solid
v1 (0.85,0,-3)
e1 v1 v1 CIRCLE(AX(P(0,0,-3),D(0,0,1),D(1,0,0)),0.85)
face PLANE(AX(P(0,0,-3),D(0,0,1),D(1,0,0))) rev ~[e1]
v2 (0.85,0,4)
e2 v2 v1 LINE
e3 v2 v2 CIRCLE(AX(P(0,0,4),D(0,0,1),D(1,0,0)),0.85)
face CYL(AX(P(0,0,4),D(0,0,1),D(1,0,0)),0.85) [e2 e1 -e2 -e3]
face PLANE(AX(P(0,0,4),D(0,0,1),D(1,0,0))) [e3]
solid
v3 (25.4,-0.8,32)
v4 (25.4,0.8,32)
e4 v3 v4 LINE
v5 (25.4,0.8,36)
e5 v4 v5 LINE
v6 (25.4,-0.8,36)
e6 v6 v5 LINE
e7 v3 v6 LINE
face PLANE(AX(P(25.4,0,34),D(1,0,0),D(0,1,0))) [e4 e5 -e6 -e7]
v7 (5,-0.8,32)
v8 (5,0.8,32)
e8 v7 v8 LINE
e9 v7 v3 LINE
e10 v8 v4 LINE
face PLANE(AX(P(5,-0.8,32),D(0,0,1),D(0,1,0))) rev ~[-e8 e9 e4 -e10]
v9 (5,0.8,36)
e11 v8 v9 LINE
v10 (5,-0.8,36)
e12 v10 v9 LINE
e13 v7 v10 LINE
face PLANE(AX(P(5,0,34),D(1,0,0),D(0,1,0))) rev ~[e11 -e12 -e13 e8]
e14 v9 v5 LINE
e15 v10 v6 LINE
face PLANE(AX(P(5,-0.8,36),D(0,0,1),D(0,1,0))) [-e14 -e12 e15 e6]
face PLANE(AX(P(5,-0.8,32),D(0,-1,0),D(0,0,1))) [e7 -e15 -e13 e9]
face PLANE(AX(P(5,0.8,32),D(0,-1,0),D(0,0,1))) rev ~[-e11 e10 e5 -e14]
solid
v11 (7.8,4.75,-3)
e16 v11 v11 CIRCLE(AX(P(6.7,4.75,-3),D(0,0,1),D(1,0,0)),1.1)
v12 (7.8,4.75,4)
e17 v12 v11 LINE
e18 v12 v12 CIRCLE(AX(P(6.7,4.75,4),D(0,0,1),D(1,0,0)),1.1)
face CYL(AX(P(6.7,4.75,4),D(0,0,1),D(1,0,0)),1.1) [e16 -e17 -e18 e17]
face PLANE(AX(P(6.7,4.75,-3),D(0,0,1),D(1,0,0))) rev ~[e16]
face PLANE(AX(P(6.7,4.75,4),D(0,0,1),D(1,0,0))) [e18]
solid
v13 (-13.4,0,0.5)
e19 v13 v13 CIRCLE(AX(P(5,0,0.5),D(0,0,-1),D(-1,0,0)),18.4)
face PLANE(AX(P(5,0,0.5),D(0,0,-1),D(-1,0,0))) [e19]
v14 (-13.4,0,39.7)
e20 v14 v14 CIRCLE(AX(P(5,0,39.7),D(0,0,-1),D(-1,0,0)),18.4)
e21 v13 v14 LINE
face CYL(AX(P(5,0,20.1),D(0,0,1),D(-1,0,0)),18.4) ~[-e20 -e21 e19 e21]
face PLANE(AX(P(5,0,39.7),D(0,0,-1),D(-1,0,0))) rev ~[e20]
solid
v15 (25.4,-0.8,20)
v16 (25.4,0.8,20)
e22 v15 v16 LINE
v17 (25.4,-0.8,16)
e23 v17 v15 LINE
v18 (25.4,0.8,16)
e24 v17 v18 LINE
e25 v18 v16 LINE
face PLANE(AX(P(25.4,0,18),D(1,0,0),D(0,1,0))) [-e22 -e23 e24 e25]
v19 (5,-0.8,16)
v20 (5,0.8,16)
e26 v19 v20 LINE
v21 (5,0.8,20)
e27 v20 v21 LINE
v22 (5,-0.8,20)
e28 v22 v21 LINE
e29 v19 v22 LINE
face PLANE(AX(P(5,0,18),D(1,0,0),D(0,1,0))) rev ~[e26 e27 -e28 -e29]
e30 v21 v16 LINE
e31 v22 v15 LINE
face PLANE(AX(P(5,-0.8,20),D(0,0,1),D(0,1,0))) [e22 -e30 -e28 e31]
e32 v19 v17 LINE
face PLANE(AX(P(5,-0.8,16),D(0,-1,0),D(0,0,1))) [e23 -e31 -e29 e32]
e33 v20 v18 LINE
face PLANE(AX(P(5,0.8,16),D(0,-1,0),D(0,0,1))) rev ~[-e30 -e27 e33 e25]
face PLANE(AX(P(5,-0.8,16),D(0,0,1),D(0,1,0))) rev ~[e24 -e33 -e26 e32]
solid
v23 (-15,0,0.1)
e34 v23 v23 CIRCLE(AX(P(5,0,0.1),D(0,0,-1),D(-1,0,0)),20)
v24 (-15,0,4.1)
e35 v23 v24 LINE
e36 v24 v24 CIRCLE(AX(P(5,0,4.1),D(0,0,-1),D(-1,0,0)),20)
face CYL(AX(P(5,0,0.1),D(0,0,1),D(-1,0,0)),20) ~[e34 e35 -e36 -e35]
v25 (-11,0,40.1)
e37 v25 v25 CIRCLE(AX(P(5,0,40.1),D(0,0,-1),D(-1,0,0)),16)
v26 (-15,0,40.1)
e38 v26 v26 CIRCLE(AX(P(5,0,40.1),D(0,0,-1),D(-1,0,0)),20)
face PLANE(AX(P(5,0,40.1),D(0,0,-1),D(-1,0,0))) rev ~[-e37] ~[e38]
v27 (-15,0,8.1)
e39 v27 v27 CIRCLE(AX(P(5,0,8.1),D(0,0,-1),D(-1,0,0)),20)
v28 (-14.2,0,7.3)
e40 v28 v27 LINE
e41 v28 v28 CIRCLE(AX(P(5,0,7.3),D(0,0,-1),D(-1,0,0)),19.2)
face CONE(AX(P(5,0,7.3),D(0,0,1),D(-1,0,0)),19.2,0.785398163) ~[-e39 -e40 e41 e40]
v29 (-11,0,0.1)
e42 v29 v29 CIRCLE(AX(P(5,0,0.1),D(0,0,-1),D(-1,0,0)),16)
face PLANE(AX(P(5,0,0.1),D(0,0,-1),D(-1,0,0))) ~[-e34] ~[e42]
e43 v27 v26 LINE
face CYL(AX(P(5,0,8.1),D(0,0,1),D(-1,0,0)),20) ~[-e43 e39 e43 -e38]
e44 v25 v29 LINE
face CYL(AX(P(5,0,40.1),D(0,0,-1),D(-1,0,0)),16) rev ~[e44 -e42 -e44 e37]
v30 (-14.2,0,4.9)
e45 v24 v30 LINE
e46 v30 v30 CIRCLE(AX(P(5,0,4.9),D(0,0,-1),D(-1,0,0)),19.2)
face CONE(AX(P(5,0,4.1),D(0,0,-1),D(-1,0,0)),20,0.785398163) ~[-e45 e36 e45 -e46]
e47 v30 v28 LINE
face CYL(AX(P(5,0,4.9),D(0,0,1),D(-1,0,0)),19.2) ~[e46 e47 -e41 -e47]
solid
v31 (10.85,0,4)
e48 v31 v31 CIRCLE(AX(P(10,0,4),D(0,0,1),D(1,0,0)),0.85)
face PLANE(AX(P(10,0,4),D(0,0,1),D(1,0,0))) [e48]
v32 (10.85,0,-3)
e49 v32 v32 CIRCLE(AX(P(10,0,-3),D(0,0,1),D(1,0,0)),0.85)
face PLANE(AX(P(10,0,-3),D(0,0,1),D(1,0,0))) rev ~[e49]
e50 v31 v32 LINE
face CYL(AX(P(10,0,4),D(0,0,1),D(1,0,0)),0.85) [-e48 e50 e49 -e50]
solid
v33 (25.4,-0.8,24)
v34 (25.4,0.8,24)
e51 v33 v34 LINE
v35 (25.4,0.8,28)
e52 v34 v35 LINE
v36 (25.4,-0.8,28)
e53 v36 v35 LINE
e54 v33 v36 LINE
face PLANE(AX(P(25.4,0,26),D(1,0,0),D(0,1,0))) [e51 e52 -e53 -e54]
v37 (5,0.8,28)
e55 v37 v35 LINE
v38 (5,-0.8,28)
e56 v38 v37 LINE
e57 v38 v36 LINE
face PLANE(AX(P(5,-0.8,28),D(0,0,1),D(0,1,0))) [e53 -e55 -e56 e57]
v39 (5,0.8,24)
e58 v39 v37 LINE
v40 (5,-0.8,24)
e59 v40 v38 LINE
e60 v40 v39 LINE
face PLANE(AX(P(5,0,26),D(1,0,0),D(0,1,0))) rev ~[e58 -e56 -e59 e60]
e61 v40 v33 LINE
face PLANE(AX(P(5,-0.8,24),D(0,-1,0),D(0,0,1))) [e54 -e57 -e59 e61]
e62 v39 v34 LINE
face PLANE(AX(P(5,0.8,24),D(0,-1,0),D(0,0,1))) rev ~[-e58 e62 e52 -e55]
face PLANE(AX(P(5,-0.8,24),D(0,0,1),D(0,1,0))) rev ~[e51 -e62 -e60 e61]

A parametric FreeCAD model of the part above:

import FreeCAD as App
import Part
import Sketcher

V = App.Vector

doc = App.newDocument("Part")
body = doc.addObject("PartDesign::Body", "Body")

# Sketch on XZ plane
sketch1 = doc.addObject("Sketcher::SketchObject", "Sketch")
body.addObject(sketch1)
sketch1.AttachmentSupport = (doc.XZ_Plane, [""])
sketch1.MapMode = "FlatFace"
sketch1.addGeometry([
    Part.LineSegment(V(-15, 4.1, 0), V(-15, 0.1, 0)),  # 0
    Part.LineSegment(V(-15, 0.1, 0), V(-11, 0.1, 0)),  # 1
    Part.LineSegment(V(-11, 0.1, 0), V(-11, 40.1, 0)),  # 2
    Part.LineSegment(V(-11, 40.1, 0), V(-15, 40.1, 0)),  # 3
    Part.LineSegment(V(-15, 40.1, 0), V(-15, 8.1, 0)),  # 4
    Part.LineSegment(V(-15, 8.1, 0), V(-14.2, 7.3, 0)),  # 5
    Part.LineSegment(V(-14.2, 7.3, 0), V(-14.2, 4.9, 0)),  # 6
    Part.LineSegment(V(-14.2, 4.9, 0), V(-15, 4.1, 0)),  # 7
], False)
sketch1.addGeometry(Part.LineSegment(V(5, 40.1, 0), V(5, 0.1, 0)), True)  # axis
sketch1.addConstraint([
    Sketcher.Constraint("Coincident", 0, 2, 1, 1),
    Sketcher.Constraint("Coincident", 1, 2, 2, 1),
    Sketcher.Constraint("Coincident", 2, 2, 3, 1),
    Sketcher.Constraint("Coincident", 3, 2, 4, 1),
    Sketcher.Constraint("Coincident", 4, 2, 5, 1),
    Sketcher.Constraint("Coincident", 5, 2, 6, 1),
    Sketcher.Constraint("Coincident", 6, 2, 7, 1),
    Sketcher.Constraint("Coincident", 7, 2, 0, 1),
    Sketcher.Constraint("Vertical", 0),
    Sketcher.Constraint("Horizontal", 1),
    Sketcher.Constraint("Vertical", 2),
    Sketcher.Constraint("Horizontal", 3),
    Sketcher.Constraint("Vertical", 4),
    Sketcher.Constraint("Vertical", 6),
    Sketcher.Constraint("Vertical", 8),
    Sketcher.Constraint("Perpendicular", 5, 7),
    Sketcher.Constraint("Horizontal", 3, 2, 8, 1),
    Sketcher.Constraint("Horizontal", 1, 2, 8, 2),
    Sketcher.Constraint("Vertical", 0, 2, 3, 2),
    Sketcher.Constraint("Equal", 3, 0),
    Sketcher.Constraint("Equal", 5, 7),
    Sketcher.Constraint("DistanceX", 1, 1, 1, 2, 4.0),
    Sketcher.Constraint("DistanceY", 2, 1, 2, 2, 40.0),
    Sketcher.Constraint("DistanceY", 4, 2, 4, 1, 32.0),
    Sketcher.Constraint("DistanceY", 6, 2, 6, 1, 2.4),
    Sketcher.Constraint("DistanceX", 0, 2, -1, 1, 15.0),
    Sketcher.Constraint("DistanceX", -1, 1, 8, 1, 5.0),
    Sketcher.Constraint("DistanceY", -1, 1, 0, 2, 0.1),
])
revolution = doc.addObject("PartDesign::Revolution", "Revolution")
body.addObject(revolution)
revolution.Profile = sketch1
revolution.ReferenceAxis = (sketch1, ["Axis0"])
revolution.Angle = 360
body2 = doc.addObject("PartDesign::Body", "Body001")

# Sketch on XZ plane
sketch2 = doc.addObject("Sketcher::SketchObject", "Sketch001")
body2.addObject(sketch2)
sketch2.AttachmentSupport = (doc.getObject("XZ_Plane001"), [""])
sketch2.MapMode = "FlatFace"
sketch2.addGeometry([
    Part.LineSegment(V(-13.4, 39.7, 0), V(-13.4, 0.5, 0)),
    Part.LineSegment(V(-13.4, 0.5, 0), V(5, 0.5, 0)),
    Part.LineSegment(V(5, 0.5, 0), V(5, 39.7, 0)),
    Part.LineSegment(V(5, 39.7, 0), V(-13.4, 39.7, 0)),
], False)
sketch2.addGeometry(Part.LineSegment(V(5, 39.7, 0), V(5, 0.5, 0)), True)  # axis
sketch2.addConstraint([
    Sketcher.Constraint("Coincident", 0, 2, 1, 1),
    Sketcher.Constraint("Coincident", 1, 2, 2, 1),
    Sketcher.Constraint("Coincident", 2, 2, 3, 1),
    Sketcher.Constraint("Coincident", 3, 2, 0, 1),
    Sketcher.Constraint("Vertical", 0),
    Sketcher.Constraint("Horizontal", 1),
    Sketcher.Constraint("Vertical", 2),
    Sketcher.Constraint("Horizontal", 3),
    Sketcher.Constraint("Vertical", 4),
    Sketcher.Constraint("Coincident", 4, 1, 2, 2),
    Sketcher.Constraint("Horizontal", 0, 2, 4, 2),
    Sketcher.Constraint("DistanceX", 1, 1, 1, 2, 18.4),
    Sketcher.Constraint("DistanceY", 0, 2, 0, 1, 39.2),
    Sketcher.Constraint("DistanceX", -1, 1, 1, 2, 5.0),
    Sketcher.Constraint("DistanceY", -1, 1, 0, 2, 0.5),
])
revolution2 = doc.addObject("PartDesign::Revolution", "Revolution001")
body2.addObject(revolution2)
revolution2.Profile = sketch2
revolution2.ReferenceAxis = (sketch2, ["Axis0"])
revolution2.Angle = 360
body3 = doc.addObject("PartDesign::Body", "Body002")
body3.AllowCompound = True

# Sketch on XY plane
sketch3 = doc.addObject("Sketcher::SketchObject", "Sketch002")
body3.addObject(sketch3)
sketch3.AttachmentSupport = (doc.getObject("XY_Plane002"), [""])
sketch3.MapMode = "FlatFace"
sketch3.AttachmentOffset = App.Placement(V(0, 0, 4), App.Rotation())
sketch3.addGeometry([
    Part.Circle(V(0, 0, 0), V(0, 0, 1), 0.85),
    Part.Circle(V(10, 0, 0), V(0, 0, 1), 0.85),
    Part.Circle(V(6.7, 4.75, 0), V(0, 0, 1), 1.1),
], False)
sketch3.addConstraint([
    Sketcher.Constraint("Coincident", 0, 3, -1, 1),
    Sketcher.Constraint("Equal", 0, 1),
    Sketcher.Constraint("PointOnObject", 1, 3, -1),
    Sketcher.Constraint("Diameter", 0, 1.7),
    Sketcher.Constraint("Diameter", 2, 2.2),
    Sketcher.Constraint("DistanceX", -1, 1, 1, 3, 10.0),
    Sketcher.Constraint("DistanceX", -1, 1, 2, 3, 6.7),
    Sketcher.Constraint("DistanceY", -1, 1, 2, 3, 4.75),
])
pad1 = doc.addObject("PartDesign::Pad", "Pad")
body3.addObject(pad1)
pad1.Profile = sketch3
pad1.Length = 7
pad1.Reversed = True
body4 = doc.addObject("PartDesign::Body", "Body003")
body4.AllowCompound = True

# Sketch on YZ plane
sketch4 = doc.addObject("Sketcher::SketchObject", "Sketch003")
body4.addObject(sketch4)
sketch4.AttachmentSupport = (doc.getObject("YZ_Plane003"), [""])
sketch4.MapMode = "FlatFace"
sketch4.AttachmentOffset = App.Placement(V(0, 0, 5), App.Rotation())
sketch4.addGeometry([
    Part.LineSegment(V(-0.8, 20, 0), V(-0.8, 16, 0)),  # 0
    Part.LineSegment(V(-0.8, 16, 0), V(0.8, 16, 0)),  # 1
    Part.LineSegment(V(0.8, 16, 0), V(0.8, 20, 0)),  # 2
    Part.LineSegment(V(0.8, 20, 0), V(-0.8, 20, 0)),  # 3
    Part.LineSegment(V(-0.8, 28, 0), V(-0.8, 24, 0)),  # 4
    Part.LineSegment(V(-0.8, 24, 0), V(0.8, 24, 0)),  # 5
    Part.LineSegment(V(0.8, 24, 0), V(0.8, 28, 0)),  # 6
    Part.LineSegment(V(0.8, 28, 0), V(-0.8, 28, 0)),  # 7
    Part.LineSegment(V(-0.8, 36, 0), V(-0.8, 32, 0)),  # 8
    Part.LineSegment(V(-0.8, 32, 0), V(0.8, 32, 0)),  # 9
    Part.LineSegment(V(0.8, 32, 0), V(0.8, 36, 0)),  # 10
    Part.LineSegment(V(0.8, 36, 0), V(-0.8, 36, 0)),  # 11
], False)
sketch4.addConstraint([
    Sketcher.Constraint("Coincident", 0, 2, 1, 1),
    Sketcher.Constraint("Coincident", 1, 2, 2, 1),
    Sketcher.Constraint("Coincident", 2, 2, 3, 1),
    Sketcher.Constraint("Coincident", 3, 2, 0, 1),
    Sketcher.Constraint("Coincident", 4, 2, 5, 1),
    Sketcher.Constraint("Coincident", 5, 2, 6, 1),
    Sketcher.Constraint("Coincident", 6, 2, 7, 1),
    Sketcher.Constraint("Coincident", 7, 2, 4, 1),
    Sketcher.Constraint("Coincident", 8, 2, 9, 1),
    Sketcher.Constraint("Coincident", 9, 2, 10, 1),
    Sketcher.Constraint("Coincident", 10, 2, 11, 1),
    Sketcher.Constraint("Coincident", 11, 2, 8, 1),
    Sketcher.Constraint("Vertical", 0),
    Sketcher.Constraint("Horizontal", 1),
    Sketcher.Constraint("Vertical", 2),
    Sketcher.Constraint("Horizontal", 3),
    Sketcher.Constraint("Vertical", 4),
    Sketcher.Constraint("Horizontal", 5),
    Sketcher.Constraint("Vertical", 6),
    Sketcher.Constraint("Horizontal", 7),
    Sketcher.Constraint("Vertical", 8),
    Sketcher.Constraint("Horizontal", 9),
    Sketcher.Constraint("Vertical", 10),
    Sketcher.Constraint("Horizontal", 11),
    Sketcher.Constraint("Vertical", 3, 2, 4, 2),
    Sketcher.Constraint("Vertical", 2, 2, 5, 2),
    Sketcher.Constraint("Vertical", 7, 2, 8, 2),
    Sketcher.Constraint("Vertical", 6, 2, 9, 2),
    Sketcher.Constraint("Equal", 2, 4),
    Sketcher.Constraint("Equal", 6, 8),
    Sketcher.Constraint("DistanceY", 0, 2, 0, 1, 4.0),
    Sketcher.Constraint("DistanceX", 1, 1, 1, 2, 1.6),
    Sketcher.Constraint("DistanceY", -1, 1, 0, 2, 16.0),
    Sketcher.Constraint("DistanceY", -1, 1, 4, 2, 24.0),
    Sketcher.Constraint("DistanceY", -1, 1, 8, 2, 32.0),
    Sketcher.Constraint("DistanceX", 0, 2, -1, 1, 0.8),
])
pad2 = doc.addObject("PartDesign::Pad", "Pad001")
body4.addObject(pad2)
pad2.Profile = sketch4
pad2.Length = 20.4

doc.recompute()
